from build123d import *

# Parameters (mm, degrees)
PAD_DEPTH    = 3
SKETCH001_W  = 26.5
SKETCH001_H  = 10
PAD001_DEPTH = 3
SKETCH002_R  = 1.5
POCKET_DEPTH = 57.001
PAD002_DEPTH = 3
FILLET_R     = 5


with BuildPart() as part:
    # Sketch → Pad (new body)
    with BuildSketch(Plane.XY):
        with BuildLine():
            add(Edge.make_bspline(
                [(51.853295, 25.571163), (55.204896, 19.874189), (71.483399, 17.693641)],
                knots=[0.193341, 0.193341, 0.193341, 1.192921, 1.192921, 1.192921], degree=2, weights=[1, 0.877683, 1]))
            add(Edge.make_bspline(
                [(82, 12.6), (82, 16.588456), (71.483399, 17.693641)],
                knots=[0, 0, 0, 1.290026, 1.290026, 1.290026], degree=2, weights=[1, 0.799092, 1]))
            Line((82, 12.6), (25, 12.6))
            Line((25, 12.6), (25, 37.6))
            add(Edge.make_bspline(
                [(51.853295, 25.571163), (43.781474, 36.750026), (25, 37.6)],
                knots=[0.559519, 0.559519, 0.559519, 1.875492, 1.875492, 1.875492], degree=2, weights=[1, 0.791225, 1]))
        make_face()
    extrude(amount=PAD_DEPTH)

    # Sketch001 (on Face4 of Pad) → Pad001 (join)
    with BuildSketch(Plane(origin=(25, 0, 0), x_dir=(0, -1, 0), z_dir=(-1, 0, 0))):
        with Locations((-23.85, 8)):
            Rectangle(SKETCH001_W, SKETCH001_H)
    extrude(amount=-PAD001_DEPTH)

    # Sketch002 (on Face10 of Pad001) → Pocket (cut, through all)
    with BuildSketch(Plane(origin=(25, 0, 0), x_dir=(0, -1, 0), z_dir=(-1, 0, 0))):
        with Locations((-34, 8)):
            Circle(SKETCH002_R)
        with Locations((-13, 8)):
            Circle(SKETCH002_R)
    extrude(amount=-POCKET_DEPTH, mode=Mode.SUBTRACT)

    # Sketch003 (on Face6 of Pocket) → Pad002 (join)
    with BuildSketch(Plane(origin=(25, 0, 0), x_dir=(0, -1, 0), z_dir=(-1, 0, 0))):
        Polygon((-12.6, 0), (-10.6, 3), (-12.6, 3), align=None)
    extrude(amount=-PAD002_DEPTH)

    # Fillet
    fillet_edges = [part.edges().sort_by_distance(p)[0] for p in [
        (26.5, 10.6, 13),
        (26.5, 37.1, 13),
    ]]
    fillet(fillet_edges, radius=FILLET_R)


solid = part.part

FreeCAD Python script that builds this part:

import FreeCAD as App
import Part
import Sketcher

V = App.Vector


def edges_at(feature, points):
    """Names of the edges that pass closest to the given points."""
    edges = feature.Shape.Edges
    near = lambda p: min(range(len(edges)), key=lambda i: edges[i].distToShape(Part.Vertex(*p))[0])
    return sorted({f"Edge{near(p) + 1}" for p in points})

doc = App.newDocument("Part")
params = doc.addObject("Spreadsheet::Sheet", "Params")
for row, (alias, value) in enumerate([
    ("pad1_length", "3 mm"),
    ("sketch2_height", "10 mm"),
    ("sketch2_width", "26.5 mm"),
    ("pad2_length", "3 mm"),
    ("sketch3_diameter", "3 mm"),
    ("sketch4_width", "2 mm"),
    ("sketch4_height", "3 mm"),
    ("pad3_length", "3 mm"),
    ("fillet_radius", "5 mm"),
], start=1):
    params.set(f"A{row}", alias)
    params.set(f"B{row}", "=" + value)
    params.setAlias(f"B{row}", alias)

body = doc.addObject("PartDesign::Body", "Body")

sketch1 = doc.addObject("Sketcher::SketchObject", "Sketch")
body.addObject(sketch1)
sketch1.AttachmentSupport = (doc.XY_Plane, [""])
sketch1.MapMode = "FlatFace"
sketch1.addGeometry(Part.BSplineCurve([V(51.853295, 25.571163, 0), V(55.204896, 19.874189, 0), V(71.483399, 17.693641, 0)], [3, 3], [0.193341, 1.192921], False, 2, [1, 0.877683, 1], False), False)
sketch1.addGeometry(Part.BSplineCurve([V(51.853295, 25.571163, 0), V(43.781474, 36.750026, 0), V(25, 37.6, 0)], [3, 3], [0.559519, 1.875492], False, 2, [1, 0.791225, 1], False), False)
sketch1.addGeometry(Part.LineSegment(V(25, 37.6, 0), V(25, 12.6, 0)), False)
sketch1.addGeometry(Part.LineSegment(V(25, 12.6, 0), V(82, 12.6, 0)), False)
sketch1.addGeometry(Part.BSplineCurve([V(82, 12.6, 0), V(82, 16.588456, 0), V(71.483399, 17.693641, 0)], [3, 3], [0, 1.290026], False, 2, [1, 0.799092, 1], False), False)
sketch1.addConstraint(Sketcher.Constraint("Block", 0))
sketch1.addConstraint(Sketcher.Constraint("Block", 1))
sketch1.addConstraint(Sketcher.Constraint("Block", 4))
sketch1.addConstraint(Sketcher.Constraint("Coincident", 1, 2, 2, 1))
sketch1.addConstraint(Sketcher.Constraint("Coincident", 2, 2, 3, 1))
sketch1.addConstraint(Sketcher.Constraint("Coincident", 3, 2, 4, 1))
sketch1.addConstraint(Sketcher.Constraint("Vertical", 2))
sketch1.addConstraint(Sketcher.Constraint("Horizontal", 3))
pad1 = doc.addObject("PartDesign::Pad", "Pad")
body.addObject(pad1)
pad1.Profile = sketch1
pad1.setExpression("Length", "Params.pad1_length")

sketch2 = doc.addObject("Sketcher::SketchObject", "Sketch001")
body.addObject(sketch2)
sketch2.AttachmentSupport = (doc.YZ_Plane, [""])
sketch2.MapMode = "FlatFace"
sketch2.AttachmentOffset = App.Placement(V(0, 0, 25), App.Rotation())
sketch2.addGeometry(Part.LineSegment(V(37, 13, 0), V(37, 3, 0)), False)
sketch2.addGeometry(Part.LineSegment(V(37, 3, 0), V(11, 3, 0)), False)
sketch2.addGeometry(Part.LineSegment(V(11, 3, 0), V(11, 13, 0)), False)
sketch2.addGeometry(Part.LineSegment(V(11, 13, 0), V(37, 13, 0)), False)
sketch2.addConstraint(Sketcher.Constraint("Coincident", 0, 2, 1, 1))
sketch2.addConstraint(Sketcher.Constraint("Coincident", 1, 2, 2, 1))
sketch2.addConstraint(Sketcher.Constraint("Coincident", 2, 2, 3, 1))
sketch2.addConstraint(Sketcher.Constraint("Coincident", 3, 2, 0, 1))
sketch2.addConstraint(Sketcher.Constraint("Vertical", 0))
sketch2.addConstraint(Sketcher.Constraint("Horizontal", 1))
sketch2.addConstraint(Sketcher.Constraint("Vertical", 2))
sketch2.addConstraint(Sketcher.Constraint("Horizontal", 3))
sketch2.addConstraint(Sketcher.Constraint("DistanceY", 0, 2, 0, 1, 10.0))
sketch2.addConstraint(Sketcher.Constraint("DistanceX", 1, 2, 1, 1, 26.5))
sketch2.addConstraint(Sketcher.Constraint("DistanceY", -1, 1, 0, 2, 3.0))
sketch2.addConstraint(Sketcher.Constraint("DistanceX", -1, 1, 0, 2, 37.1))
sketch2.setExpression("Constraints[8]", "Params.sketch2_height")
sketch2.setExpression("Constraints[9]", "Params.sketch2_width")
pad2 = doc.addObject("PartDesign::Pad", "Pad001")
body.addObject(pad2)
pad2.Profile = sketch2
pad2.setExpression("Length", "Params.pad2_length")

sketch3 = doc.addObject("Sketcher::SketchObject", "Sketch002")
body.addObject(sketch3)
sketch3.AttachmentSupport = (doc.YZ_Plane, [""])
sketch3.MapMode = "FlatFace"
sketch3.AttachmentOffset = App.Placement(V(0, 0, 25), App.Rotation())
sketch3.addGeometry(Part.Circle(V(34, 8, 0), V(0, 0, 1), 1.5), False)
sketch3.addGeometry(Part.Circle(V(13, 8, 0), V(0, 0, 1), 1.5), False)
sketch3.addConstraint(Sketcher.Constraint("Equal", 0, 1))
sketch3.addConstraint(Sketcher.Constraint("Horizontal", 0, 3, 1, 3))
sketch3.addConstraint(Sketcher.Constraint("Diameter", 0, 3.0))
sketch3.addConstraint(Sketcher.Constraint("DistanceX", -1, 1, 0, 3, 34.0))
sketch3.addConstraint(Sketcher.Constraint("DistanceY", -1, 1, 0, 3, 8.0))
sketch3.addConstraint(Sketcher.Constraint("DistanceX", -1, 1, 1, 3, 13.0))
sketch3.setExpression("Constraints[2]", "Params.sketch3_diameter")
pocket1 = doc.addObject("PartDesign::Pocket", "Pocket")
body.addObject(pocket1)
pocket1.Profile = sketch3
pocket1.Type = "ThroughAll"
pocket1.Reversed = True

sketch4 = doc.addObject("Sketcher::SketchObject", "Sketch003")
body.addObject(sketch4)
sketch4.AttachmentSupport = (doc.YZ_Plane, [""])
sketch4.MapMode = "FlatFace"
sketch4.AttachmentOffset = App.Placement(V(0, 0, 25), App.Rotation())
sketch4.addGeometry(Part.LineSegment(V(12.6, 0, 0), V(10.6, 3, 0)), False)
sketch4.addGeometry(Part.LineSegment(V(10.6, 3, 0), V(12.6, 3, 0)), False)
sketch4.addGeometry(Part.LineSegment(V(12.6, 3, 0), V(12.6, 0, 0)), False)
sketch4.addConstraint(Sketcher.Constraint("Coincident", 0, 2, 1, 1))
sketch4.addConstraint(Sketcher.Constraint("Coincident", 1, 2, 2, 1))
sketch4.addConstraint(Sketcher.Constraint("Coincident", 2, 2, 0, 1))
sketch4.addConstraint(Sketcher.Constraint("Horizontal", 1))
sketch4.addConstraint(Sketcher.Constraint("Vertical", 2))
sketch4.addConstraint(Sketcher.Constraint("PointOnObject", 2, 2, -1))
sketch4.addConstraint(Sketcher.Constraint("DistanceX", 1, 1, 1, 2, 2.0))
sketch4.addConstraint(Sketcher.Constraint("DistanceY", 2, 2, 2, 1, 3.0))
sketch4.addConstraint(Sketcher.Constraint("DistanceX", -1, 1, 0, 2, 10.6))
sketch4.setExpression("Constraints[6]", "Params.sketch4_width")
sketch4.setExpression("Constraints[7]", "Params.sketch4_height")
pad3 = doc.addObject("PartDesign::Pad", "Pad002")
body.addObject(pad3)
pad3.Profile = sketch4
pad3.setExpression("Length", "Params.pad3_length")
doc.recompute()

fillet = doc.addObject("PartDesign::Fillet", "Fillet")
body.addObject(fillet)
fillet.Base = (pad3, edges_at(pad3, [(26.5, 10.6, 13), (26.5, 37.1, 13)]))
fillet.setExpression("Radius", "Params.fillet_radius")

doc.recompute()
